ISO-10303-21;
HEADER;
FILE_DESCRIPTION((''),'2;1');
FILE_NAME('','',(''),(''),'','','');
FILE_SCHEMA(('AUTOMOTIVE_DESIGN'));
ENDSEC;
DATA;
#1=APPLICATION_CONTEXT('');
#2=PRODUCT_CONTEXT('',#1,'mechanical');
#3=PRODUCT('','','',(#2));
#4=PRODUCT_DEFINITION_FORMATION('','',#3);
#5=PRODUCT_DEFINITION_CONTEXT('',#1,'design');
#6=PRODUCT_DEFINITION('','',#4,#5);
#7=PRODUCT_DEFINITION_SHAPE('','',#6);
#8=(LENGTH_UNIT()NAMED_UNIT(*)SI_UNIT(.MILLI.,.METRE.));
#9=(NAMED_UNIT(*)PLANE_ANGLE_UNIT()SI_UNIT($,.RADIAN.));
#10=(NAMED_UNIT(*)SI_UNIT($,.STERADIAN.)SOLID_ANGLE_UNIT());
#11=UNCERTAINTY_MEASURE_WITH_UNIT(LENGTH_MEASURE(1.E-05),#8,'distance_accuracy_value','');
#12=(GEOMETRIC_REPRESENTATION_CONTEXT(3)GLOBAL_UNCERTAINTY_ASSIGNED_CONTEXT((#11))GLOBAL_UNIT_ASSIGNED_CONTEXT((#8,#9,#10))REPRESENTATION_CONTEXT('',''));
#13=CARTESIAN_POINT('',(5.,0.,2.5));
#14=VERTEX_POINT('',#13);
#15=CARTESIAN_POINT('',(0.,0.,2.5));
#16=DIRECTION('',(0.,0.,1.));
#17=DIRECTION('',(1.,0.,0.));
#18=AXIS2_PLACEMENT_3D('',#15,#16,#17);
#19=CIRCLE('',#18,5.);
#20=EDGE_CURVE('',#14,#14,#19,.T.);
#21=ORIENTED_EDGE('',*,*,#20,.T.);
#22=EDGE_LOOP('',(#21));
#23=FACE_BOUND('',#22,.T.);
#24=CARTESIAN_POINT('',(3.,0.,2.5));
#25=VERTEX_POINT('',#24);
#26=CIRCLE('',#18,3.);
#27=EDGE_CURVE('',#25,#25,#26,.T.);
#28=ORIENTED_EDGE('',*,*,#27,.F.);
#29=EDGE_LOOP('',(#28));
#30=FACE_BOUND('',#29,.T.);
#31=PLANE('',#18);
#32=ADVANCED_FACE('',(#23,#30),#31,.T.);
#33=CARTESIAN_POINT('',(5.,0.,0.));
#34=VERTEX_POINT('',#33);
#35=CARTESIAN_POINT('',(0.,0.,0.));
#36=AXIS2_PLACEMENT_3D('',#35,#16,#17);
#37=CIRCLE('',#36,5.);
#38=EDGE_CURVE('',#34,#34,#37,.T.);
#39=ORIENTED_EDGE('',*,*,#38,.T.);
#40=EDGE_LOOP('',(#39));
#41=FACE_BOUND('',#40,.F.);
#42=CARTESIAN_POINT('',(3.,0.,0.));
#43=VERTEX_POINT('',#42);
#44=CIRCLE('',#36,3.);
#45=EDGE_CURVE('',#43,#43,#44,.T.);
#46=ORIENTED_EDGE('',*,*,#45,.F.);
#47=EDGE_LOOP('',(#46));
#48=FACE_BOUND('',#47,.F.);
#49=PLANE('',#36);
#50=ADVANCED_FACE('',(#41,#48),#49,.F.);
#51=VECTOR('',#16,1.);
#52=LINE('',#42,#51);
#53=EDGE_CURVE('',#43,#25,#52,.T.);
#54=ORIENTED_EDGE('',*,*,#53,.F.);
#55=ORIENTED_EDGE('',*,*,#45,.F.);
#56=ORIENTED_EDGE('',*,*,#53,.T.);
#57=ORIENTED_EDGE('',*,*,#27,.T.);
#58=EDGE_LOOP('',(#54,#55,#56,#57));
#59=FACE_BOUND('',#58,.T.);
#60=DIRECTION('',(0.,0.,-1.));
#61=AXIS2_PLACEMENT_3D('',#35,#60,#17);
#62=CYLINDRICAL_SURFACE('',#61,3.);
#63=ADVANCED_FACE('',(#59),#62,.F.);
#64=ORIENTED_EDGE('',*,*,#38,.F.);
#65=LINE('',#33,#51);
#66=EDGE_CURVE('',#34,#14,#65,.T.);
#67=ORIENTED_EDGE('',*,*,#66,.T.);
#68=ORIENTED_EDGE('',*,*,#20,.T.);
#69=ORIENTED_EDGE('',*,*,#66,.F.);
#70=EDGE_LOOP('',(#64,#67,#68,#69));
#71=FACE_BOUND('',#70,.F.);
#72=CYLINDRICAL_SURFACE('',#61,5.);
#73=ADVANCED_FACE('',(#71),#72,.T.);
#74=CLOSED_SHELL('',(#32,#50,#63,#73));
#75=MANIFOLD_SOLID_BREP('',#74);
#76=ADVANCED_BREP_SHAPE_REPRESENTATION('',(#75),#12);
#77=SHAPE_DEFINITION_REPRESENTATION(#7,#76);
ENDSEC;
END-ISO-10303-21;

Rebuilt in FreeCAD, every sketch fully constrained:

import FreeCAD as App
import Part
import Sketcher

doc = App.newDocument("Part")
params = doc.addObject("Spreadsheet::Sheet", "Params")
for row, (alias, value) in enumerate([
    ("sketch1_diameter", "10 mm"),
    ("sketch1_diameter2", "6 mm"),
    ("pad1_length", "2.5 mm"),
], start=1):
    params.set(f"A{row}", alias)
    params.set(f"B{row}", "=" + value)
    params.setAlias(f"B{row}", alias)

body = doc.addObject("PartDesign::Body", "Body")

# Sketch on XY plane
sketch1 = doc.addObject("Sketcher::SketchObject", "Sketch")
body.addObject(sketch1)
sketch1.AttachmentSupport = (doc.XY_Plane, [""])
sketch1.MapMode = "FlatFace"
sketch1.addGeometry(Part.Circle(App.Vector(0, 0, 0), App.Vector(0, 0, 1), 5), False)
sketch1.addGeometry(Part.Circle(App.Vector(0, 0, 0), App.Vector(0, 0, 1), 3), False)
sketch1.addConstraint(Sketcher.Constraint("Coincident", 0, 3, -1, 1))
sketch1.addConstraint(Sketcher.Constraint("Coincident", 1, 3, -1, 1))
sketch1.addConstraint(Sketcher.Constraint("Diameter", 0, 10.0))
sketch1.addConstraint(Sketcher.Constraint("Diameter", 1, 6.0))
sketch1.setExpression("Constraints[2]", "Params.sketch1_diameter")
sketch1.setExpression("Constraints[3]", "Params.sketch1_diameter2")
pad1 = doc.addObject("PartDesign::Pad", "Pad")
body.addObject(pad1)
pad1.Profile = sketch1
pad1.setExpression("Length", "Params.pad1_length")

doc.recompute()
